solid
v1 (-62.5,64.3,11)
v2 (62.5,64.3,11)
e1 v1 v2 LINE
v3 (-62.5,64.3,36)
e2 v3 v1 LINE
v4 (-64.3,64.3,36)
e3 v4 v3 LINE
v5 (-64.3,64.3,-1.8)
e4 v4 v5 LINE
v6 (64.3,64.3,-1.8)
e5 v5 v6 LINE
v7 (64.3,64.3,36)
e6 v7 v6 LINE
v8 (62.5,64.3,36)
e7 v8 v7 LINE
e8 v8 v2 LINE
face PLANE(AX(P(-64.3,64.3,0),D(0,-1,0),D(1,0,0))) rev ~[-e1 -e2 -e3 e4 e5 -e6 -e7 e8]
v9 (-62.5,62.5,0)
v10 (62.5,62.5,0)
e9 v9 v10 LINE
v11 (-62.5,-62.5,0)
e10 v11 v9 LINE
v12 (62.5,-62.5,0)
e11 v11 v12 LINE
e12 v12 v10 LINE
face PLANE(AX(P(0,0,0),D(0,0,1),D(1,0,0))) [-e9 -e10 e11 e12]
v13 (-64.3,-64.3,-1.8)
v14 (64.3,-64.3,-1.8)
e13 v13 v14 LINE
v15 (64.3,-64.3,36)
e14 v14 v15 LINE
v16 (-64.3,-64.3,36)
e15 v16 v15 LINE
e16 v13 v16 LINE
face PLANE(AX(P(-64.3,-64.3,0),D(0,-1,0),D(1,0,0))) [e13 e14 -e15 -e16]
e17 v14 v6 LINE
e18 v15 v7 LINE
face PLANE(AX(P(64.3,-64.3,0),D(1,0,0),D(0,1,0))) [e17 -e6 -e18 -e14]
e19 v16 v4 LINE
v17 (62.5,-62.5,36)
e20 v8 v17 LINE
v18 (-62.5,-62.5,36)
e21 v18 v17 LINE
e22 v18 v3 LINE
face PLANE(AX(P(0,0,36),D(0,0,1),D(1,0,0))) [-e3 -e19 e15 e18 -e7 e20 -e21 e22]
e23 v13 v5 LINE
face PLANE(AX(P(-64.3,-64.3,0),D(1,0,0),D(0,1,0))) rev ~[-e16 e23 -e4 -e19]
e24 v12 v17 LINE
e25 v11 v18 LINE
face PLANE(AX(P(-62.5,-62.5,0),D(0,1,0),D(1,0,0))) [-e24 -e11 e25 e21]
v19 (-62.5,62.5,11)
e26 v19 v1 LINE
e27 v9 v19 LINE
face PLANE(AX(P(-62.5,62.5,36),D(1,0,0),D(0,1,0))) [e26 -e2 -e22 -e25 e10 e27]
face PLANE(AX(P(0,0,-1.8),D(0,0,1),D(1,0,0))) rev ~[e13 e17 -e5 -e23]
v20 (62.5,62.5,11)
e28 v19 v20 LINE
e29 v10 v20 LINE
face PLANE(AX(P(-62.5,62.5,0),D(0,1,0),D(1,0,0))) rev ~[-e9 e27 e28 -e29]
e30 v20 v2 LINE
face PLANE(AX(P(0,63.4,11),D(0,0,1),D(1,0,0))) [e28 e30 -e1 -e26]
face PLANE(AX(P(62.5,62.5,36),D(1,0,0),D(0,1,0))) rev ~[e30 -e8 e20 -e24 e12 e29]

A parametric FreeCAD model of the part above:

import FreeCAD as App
import Part
import Sketcher
from FreeCAD import Vector


def add_polygon(sketch, points):
    """Adds a closed chain of lines whose ends are joined by coincident constraints."""
    first, n = sketch.GeometryCount, len(points)
    for a, b in zip(points, points[1:] + points[:1]):
        sketch.addGeometry(Part.LineSegment(App.Vector(*a, 0), App.Vector(*b, 0)), False)
    for i in range(n):
        sketch.addConstraint(Sketcher.Constraint("Coincident", first + i, 2, first + (i + 1) % n, 1))

doc = App.newDocument("Part")
body = doc.addObject("PartDesign::Body", "Body")

# Sketch on XY plane
sketch1 = body.newObject("Sketcher::SketchObject", "Sketch")
sketch1.AttachmentSupport = (doc.getObject("XY_Plane"), [""])
sketch1.MapMode = "FlatFace"
add_polygon(sketch1, [(-64.3, 64.3), (-64.3, -64.3), (64.3, -64.3), (64.3, 64.3)])  # lines 0-3
add_polygon(sketch1, [(62.5, -62.5), (-62.5, -62.5), (-62.5, 62.5), (62.5, 62.5)])  # lines 4-7
sketch1.addConstraint(Sketcher.Constraint("Vertical", 0))
sketch1.addConstraint(Sketcher.Constraint("Horizontal", 1))
sketch1.addConstraint(Sketcher.Constraint("Vertical", 2))
sketch1.addConstraint(Sketcher.Constraint("Horizontal", 3))
sketch1.addConstraint(Sketcher.Constraint("Horizontal", 4))
sketch1.addConstraint(Sketcher.Constraint("Vertical", 5))
sketch1.addConstraint(Sketcher.Constraint("Horizontal", 6))
sketch1.addConstraint(Sketcher.Constraint("Vertical", 7))
sketch1.addConstraint(Sketcher.Constraint("Symmetric", 0, 2, 2, 2, -1, 1))
sketch1.addConstraint(Sketcher.Constraint("Symmetric", 4, 2, 6, 2, -1, 1))
sketch1.addConstraint(Sketcher.Constraint("Equal", 3, 0))
sketch1.addConstraint(Sketcher.Constraint("Equal", 6, 5))
sketch1.addConstraint(Sketcher.Constraint("DistanceX", 4, 2, 4, 1, 125.0))
sketch1.addConstraint(Sketcher.Constraint("DistanceX", 1, 1, 1, 2, 128.6))
pad1 = body.newObject("PartDesign::Pad", "Pad")
pad1.Profile = sketch1
pad1.Length = 36

# Sketch on XY plane
sketch2 = body.newObject("Sketcher::SketchObject", "Sketch001")
sketch2.AttachmentSupport = (doc.getObject("XY_Plane"), [""])
sketch2.MapMode = "FlatFace"
add_polygon(sketch2, [(-64.3, 64.3), (-64.3, -64.3), (64.3, -64.3), (64.3, 64.3)])  # lines 0-3
sketch2.addConstraint(Sketcher.Constraint("Vertical", 0))
sketch2.addConstraint(Sketcher.Constraint("Horizontal", 1))
sketch2.addConstraint(Sketcher.Constraint("Vertical", 2))
sketch2.addConstraint(Sketcher.Constraint("Horizontal", 3))
sketch2.addConstraint(Sketcher.Constraint("Symmetric", 0, 2, 2, 2, -1, 1))
sketch2.addConstraint(Sketcher.Constraint("Equal", 3, 0))
sketch2.addConstraint(Sketcher.Constraint("DistanceX", 1, 1, 1, 2, 128.6))
pad2 = body.newObject("PartDesign::Pad", "Pad001")
pad2.Profile = sketch2
pad2.Length = 1.8
pad2.Reversed = True

# Sketch on XY plane
sketch3 = body.newObject("Sketcher::SketchObject", "Sketch002")
sketch3.AttachmentSupport = (doc.getObject("XY_Plane"), [""])
sketch3.MapMode = "FlatFace"
sketch3.AttachmentOffset = App.Placement(Vector(0, 0, 36), App.Rotation())
add_polygon(sketch3, [(-62.5, 64.3), (-62.5, 62.5), (62.5, 62.5), (62.5, 64.3)])  # lines 0-3
sketch3.addConstraint(Sketcher.Constraint("Vertical", 0))
sketch3.addConstraint(Sketcher.Constraint("Horizontal", 1))
sketch3.addConstraint(Sketcher.Constraint("Vertical", 2))
sketch3.addConstraint(Sketcher.Constraint("Horizontal", 3))
sketch3.addConstraint(Sketcher.Constraint("DistanceX", 1, 1, 1, 2, 125.0))
sketch3.addConstraint(Sketcher.Constraint("DistanceY", 0, 2, 0, 1, 1.8))
sketch3.addConstraint(Sketcher.Constraint("DistanceX", 0, 2, -1, 1, 62.5))
sketch3.addConstraint(Sketcher.Constraint("DistanceY", -1, 1, 0, 2, 62.5))
pocket1 = body.newObject("PartDesign::Pocket", "Pocket")
pocket1.Profile = sketch3
pocket1.Length = 25

doc.recompute()
